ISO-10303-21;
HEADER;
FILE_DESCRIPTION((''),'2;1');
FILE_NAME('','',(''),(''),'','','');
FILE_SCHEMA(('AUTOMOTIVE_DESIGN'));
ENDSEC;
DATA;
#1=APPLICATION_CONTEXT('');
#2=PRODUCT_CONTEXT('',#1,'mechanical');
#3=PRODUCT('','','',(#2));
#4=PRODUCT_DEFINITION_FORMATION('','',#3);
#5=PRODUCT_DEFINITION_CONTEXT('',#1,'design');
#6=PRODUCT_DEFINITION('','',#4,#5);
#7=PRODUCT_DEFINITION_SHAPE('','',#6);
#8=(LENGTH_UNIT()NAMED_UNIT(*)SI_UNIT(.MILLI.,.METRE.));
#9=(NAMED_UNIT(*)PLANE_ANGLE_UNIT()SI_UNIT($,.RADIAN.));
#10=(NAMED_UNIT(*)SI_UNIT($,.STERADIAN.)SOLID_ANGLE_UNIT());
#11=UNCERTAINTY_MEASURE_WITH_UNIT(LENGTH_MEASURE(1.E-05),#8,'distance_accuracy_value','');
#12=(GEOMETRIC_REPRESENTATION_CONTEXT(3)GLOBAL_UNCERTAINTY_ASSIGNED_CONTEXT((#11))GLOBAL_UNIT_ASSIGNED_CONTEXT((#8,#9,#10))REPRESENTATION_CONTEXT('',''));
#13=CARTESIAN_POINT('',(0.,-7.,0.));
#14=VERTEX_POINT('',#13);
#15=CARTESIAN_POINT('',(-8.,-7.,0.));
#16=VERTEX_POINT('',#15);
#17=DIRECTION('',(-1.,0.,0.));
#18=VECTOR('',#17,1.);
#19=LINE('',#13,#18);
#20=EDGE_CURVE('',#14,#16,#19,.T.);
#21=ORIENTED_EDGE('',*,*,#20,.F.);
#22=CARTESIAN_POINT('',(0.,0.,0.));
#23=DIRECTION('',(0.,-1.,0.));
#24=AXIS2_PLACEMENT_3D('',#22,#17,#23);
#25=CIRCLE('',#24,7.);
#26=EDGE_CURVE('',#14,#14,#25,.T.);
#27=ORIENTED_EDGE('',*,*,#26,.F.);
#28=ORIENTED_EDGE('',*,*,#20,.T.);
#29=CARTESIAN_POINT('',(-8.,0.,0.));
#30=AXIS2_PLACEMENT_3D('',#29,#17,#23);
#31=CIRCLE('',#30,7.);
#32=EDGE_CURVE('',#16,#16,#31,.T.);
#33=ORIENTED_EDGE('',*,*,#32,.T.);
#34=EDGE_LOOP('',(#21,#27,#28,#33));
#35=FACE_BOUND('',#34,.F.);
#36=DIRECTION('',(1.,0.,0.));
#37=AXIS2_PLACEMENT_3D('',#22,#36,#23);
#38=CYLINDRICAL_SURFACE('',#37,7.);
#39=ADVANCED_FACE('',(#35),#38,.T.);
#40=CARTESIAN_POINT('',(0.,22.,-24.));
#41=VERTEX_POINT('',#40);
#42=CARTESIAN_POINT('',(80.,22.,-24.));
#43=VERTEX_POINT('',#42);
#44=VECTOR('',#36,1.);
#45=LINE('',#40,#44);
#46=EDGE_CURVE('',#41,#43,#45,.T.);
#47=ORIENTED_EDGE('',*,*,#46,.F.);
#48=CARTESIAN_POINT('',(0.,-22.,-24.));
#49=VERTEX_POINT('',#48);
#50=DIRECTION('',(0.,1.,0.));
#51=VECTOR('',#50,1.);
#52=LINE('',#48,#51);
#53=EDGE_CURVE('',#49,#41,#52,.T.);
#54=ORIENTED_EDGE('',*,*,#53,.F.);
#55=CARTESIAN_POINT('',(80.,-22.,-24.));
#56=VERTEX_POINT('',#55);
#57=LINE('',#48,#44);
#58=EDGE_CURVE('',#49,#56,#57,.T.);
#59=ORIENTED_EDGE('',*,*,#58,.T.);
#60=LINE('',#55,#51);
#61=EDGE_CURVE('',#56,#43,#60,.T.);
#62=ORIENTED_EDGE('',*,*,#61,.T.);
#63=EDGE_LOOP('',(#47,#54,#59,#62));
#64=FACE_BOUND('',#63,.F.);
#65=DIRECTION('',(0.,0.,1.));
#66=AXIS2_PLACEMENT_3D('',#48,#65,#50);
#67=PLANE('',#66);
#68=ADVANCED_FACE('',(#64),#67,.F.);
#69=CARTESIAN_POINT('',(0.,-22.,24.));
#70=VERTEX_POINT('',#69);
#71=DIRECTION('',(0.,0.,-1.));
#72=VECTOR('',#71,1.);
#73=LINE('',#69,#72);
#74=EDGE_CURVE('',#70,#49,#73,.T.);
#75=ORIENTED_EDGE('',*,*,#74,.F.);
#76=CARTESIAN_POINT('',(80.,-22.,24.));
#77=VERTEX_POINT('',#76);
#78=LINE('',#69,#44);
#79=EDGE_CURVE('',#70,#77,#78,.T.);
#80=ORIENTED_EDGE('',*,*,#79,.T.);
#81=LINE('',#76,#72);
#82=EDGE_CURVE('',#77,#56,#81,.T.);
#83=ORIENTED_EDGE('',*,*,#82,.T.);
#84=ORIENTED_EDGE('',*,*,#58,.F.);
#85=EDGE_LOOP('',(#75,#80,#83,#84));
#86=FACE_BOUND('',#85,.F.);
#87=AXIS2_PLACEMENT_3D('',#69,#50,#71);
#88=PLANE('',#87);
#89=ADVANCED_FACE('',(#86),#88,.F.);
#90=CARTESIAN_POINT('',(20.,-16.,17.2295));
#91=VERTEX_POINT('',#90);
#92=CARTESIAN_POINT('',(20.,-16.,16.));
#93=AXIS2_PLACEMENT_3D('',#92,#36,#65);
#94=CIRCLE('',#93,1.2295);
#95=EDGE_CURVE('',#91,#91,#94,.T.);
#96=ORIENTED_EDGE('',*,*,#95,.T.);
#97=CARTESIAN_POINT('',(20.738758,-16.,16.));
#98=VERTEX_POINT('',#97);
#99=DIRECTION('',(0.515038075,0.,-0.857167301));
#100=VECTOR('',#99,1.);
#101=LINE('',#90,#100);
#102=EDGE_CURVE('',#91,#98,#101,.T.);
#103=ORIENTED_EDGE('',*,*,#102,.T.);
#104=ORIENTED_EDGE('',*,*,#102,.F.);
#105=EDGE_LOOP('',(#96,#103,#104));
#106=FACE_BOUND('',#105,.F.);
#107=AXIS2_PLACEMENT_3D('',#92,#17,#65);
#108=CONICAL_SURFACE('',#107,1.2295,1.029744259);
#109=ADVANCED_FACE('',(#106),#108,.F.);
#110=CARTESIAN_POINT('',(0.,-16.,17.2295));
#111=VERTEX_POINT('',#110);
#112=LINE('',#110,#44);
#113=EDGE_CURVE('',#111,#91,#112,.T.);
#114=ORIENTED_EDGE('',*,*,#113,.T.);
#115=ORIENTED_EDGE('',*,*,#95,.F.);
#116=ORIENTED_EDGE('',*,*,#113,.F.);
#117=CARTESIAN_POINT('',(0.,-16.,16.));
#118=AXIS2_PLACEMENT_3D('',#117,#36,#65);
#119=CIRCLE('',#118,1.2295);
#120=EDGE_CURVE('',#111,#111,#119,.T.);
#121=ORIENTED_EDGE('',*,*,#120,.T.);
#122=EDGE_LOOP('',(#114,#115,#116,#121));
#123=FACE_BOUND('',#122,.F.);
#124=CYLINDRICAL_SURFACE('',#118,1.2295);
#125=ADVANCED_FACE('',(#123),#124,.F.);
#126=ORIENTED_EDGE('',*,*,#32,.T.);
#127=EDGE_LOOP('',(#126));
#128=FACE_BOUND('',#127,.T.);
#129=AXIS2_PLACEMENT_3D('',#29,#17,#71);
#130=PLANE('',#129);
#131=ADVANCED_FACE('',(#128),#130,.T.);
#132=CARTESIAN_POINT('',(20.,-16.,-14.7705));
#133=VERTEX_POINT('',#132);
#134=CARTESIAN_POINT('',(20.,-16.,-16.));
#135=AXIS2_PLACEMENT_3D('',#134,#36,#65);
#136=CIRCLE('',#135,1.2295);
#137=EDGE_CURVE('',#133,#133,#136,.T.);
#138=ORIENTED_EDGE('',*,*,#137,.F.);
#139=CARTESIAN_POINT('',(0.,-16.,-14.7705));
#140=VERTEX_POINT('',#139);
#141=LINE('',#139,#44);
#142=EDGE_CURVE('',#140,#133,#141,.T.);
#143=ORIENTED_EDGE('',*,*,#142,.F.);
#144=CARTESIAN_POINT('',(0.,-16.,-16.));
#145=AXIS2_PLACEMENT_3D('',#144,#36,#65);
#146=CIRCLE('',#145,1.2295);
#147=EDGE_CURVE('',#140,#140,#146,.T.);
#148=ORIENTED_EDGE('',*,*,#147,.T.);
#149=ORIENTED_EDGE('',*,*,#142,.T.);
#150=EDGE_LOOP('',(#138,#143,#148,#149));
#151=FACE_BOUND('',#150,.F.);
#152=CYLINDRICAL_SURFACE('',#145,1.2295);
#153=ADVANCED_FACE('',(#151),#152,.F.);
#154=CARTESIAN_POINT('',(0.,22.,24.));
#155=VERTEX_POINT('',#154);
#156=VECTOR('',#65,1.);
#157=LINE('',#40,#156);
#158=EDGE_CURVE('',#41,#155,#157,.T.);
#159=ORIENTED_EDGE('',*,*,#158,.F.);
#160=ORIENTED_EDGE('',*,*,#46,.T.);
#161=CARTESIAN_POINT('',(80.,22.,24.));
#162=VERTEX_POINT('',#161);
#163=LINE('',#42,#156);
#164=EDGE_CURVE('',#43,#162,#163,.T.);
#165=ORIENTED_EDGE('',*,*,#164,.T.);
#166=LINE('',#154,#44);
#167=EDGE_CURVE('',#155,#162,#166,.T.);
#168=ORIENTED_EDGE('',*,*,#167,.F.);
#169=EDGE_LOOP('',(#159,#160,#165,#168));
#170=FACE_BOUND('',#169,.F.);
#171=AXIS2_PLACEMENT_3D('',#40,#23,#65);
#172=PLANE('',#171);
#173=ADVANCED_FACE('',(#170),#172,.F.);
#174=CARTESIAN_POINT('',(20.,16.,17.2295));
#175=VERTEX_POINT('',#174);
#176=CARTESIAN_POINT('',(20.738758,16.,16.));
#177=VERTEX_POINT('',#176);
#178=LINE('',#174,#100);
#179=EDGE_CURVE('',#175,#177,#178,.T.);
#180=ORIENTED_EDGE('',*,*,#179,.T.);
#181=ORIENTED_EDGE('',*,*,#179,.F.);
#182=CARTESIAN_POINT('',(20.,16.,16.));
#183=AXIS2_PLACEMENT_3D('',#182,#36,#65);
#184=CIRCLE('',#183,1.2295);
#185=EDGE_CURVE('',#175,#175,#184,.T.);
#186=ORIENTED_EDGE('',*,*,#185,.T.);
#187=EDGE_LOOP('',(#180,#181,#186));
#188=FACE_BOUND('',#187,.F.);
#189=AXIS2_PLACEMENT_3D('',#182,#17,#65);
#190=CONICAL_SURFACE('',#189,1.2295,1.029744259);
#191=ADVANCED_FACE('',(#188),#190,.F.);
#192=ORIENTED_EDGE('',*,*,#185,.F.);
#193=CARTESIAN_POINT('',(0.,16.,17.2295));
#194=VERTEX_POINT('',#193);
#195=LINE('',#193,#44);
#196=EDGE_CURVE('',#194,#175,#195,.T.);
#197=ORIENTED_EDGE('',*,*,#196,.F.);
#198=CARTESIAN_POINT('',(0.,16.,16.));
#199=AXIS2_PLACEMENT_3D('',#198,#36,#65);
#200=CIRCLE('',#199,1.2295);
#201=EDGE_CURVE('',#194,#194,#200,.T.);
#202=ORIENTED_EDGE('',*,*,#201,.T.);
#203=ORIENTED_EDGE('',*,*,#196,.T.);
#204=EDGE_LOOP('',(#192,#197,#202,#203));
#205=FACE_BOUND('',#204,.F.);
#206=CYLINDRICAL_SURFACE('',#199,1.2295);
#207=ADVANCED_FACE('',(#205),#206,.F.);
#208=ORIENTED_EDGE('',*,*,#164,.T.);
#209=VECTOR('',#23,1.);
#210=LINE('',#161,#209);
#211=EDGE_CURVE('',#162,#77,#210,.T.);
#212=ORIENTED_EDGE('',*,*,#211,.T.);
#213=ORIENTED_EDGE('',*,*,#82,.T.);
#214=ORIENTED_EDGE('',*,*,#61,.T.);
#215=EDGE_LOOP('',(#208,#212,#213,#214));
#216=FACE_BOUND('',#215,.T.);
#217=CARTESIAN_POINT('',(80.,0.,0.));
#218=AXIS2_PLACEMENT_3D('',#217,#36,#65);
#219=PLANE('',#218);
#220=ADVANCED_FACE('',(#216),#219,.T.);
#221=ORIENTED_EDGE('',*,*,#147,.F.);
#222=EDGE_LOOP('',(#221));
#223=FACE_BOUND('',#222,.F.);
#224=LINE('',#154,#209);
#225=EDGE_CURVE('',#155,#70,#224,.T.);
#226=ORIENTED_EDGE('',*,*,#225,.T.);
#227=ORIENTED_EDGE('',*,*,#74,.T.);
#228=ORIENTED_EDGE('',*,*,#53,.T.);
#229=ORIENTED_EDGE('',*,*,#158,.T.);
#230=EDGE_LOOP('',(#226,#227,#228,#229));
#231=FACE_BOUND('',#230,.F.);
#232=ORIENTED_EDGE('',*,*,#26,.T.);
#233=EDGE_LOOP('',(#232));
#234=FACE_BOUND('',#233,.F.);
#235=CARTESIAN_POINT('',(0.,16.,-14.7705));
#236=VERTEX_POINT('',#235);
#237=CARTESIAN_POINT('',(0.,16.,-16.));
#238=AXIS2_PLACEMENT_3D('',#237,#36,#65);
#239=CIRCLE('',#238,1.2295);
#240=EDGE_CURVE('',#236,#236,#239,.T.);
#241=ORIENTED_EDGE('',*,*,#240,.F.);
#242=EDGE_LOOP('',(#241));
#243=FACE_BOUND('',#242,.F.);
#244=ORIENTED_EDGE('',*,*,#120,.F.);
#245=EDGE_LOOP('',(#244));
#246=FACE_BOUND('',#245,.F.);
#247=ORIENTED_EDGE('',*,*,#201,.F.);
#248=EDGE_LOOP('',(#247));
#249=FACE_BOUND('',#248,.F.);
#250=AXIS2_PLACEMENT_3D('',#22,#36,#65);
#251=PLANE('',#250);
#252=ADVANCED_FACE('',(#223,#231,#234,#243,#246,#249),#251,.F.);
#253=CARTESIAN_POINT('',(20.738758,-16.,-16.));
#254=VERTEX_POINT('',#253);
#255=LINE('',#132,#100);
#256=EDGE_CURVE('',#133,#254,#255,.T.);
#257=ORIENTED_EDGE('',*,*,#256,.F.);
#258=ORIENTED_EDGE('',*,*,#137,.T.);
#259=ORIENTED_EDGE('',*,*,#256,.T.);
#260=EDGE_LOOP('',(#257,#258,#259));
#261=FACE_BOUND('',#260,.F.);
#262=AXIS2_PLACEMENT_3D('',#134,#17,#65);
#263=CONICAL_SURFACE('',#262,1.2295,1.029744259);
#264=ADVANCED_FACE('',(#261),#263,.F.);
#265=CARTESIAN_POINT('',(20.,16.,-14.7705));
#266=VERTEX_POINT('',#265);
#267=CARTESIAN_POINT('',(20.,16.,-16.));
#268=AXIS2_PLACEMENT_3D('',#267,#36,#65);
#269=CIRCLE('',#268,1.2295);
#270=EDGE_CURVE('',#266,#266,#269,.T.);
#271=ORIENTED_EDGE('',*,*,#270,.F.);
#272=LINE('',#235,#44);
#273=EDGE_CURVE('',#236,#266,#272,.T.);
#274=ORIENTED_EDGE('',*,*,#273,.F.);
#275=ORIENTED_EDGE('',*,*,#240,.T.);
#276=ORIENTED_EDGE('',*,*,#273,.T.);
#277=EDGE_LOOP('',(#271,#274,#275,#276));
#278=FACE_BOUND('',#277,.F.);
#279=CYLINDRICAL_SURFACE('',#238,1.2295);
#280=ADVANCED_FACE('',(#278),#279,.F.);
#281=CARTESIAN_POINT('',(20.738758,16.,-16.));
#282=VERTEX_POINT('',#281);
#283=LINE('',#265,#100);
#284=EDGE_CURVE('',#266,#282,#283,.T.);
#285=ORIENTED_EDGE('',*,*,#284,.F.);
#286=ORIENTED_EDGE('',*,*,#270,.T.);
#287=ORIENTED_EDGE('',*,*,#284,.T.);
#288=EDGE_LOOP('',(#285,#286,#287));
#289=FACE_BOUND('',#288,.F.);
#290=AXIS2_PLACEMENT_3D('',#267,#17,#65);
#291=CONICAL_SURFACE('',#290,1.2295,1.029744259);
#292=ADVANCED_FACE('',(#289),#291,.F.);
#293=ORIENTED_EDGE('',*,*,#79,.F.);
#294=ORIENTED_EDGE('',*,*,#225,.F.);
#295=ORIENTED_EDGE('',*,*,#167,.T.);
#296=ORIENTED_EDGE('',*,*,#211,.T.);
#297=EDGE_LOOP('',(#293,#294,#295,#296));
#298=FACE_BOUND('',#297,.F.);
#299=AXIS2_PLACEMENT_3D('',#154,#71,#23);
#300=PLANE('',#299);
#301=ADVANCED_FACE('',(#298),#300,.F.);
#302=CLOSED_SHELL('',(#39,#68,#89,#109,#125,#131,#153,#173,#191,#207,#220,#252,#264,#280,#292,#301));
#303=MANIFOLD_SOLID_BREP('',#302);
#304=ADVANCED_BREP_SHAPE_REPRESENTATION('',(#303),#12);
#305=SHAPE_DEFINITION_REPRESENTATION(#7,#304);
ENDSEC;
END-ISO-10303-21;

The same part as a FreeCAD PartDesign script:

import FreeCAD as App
import Part
import Sketcher


def add_polygon(sketch, points):
    """Adds a closed chain of lines whose ends are joined by coincident constraints."""
    first, n = sketch.GeometryCount, len(points)
    for a, b in zip(points, points[1:] + points[:1]):
        sketch.addGeometry(Part.LineSegment(App.Vector(*a, 0), App.Vector(*b, 0)), False)
    for i in range(n):
        sketch.addConstraint(Sketcher.Constraint("Coincident", first + i, 2, first + (i + 1) % n, 1))

doc = App.newDocument("Part")
body = doc.addObject("PartDesign::Body", "Body")

# Sketch on YZ plane
sketch1 = body.newObject("Sketcher::SketchObject", "Sketch")
sketch1.AttachmentSupport = (doc.getObject("YZ_Plane"), [""])
sketch1.MapMode = "FlatFace"
add_polygon(sketch1, [(22, -24), (22, 24), (-22, 24), (-22, -24)])  # lines 0-3
sketch1.addConstraint(Sketcher.Constraint("Vertical", 0))
sketch1.addConstraint(Sketcher.Constraint("Horizontal", 1))
sketch1.addConstraint(Sketcher.Constraint("Vertical", 2))
sketch1.addConstraint(Sketcher.Constraint("Horizontal", 3))
sketch1.addConstraint(Sketcher.Constraint("Symmetric", 0, 2, 2, 2, -1, 1))
sketch1.addConstraint(Sketcher.Constraint("DistanceX", 1, 2, 1, 1, 44.0))
sketch1.addConstraint(Sketcher.Constraint("DistanceY", 0, 1, 0, 2, 48.0))
pad1 = body.newObject("PartDesign::Pad", "Pad")
pad1.Profile = sketch1
pad1.Length = 80

# Sketch on YZ plane
sketch2 = body.newObject("Sketcher::SketchObject", "Sketch001")
sketch2.AttachmentSupport = (doc.getObject("YZ_Plane"), [""])
sketch2.MapMode = "FlatFace"
sketch2.addGeometry(Part.Circle(App.Vector(0, 0, 0), App.Vector(0, 0, 1), 7), False)
sketch2.addConstraint(Sketcher.Constraint("Coincident", 0, 3, -1, 1))
sketch2.addConstraint(Sketcher.Constraint("Diameter", 0, 14.0))
pad2 = body.newObject("PartDesign::Pad", "Pad001")
pad2.Profile = sketch2
pad2.Length = 8
pad2.Reversed = True

# Sketch on YZ plane
sketch3 = body.newObject("Sketcher::SketchObject", "Sketch002")
sketch3.AttachmentSupport = (doc.getObject("YZ_Plane"), [""])
sketch3.MapMode = "FlatFace"
sketch3.addGeometry(Part.Circle(App.Vector(16, 16, 0), App.Vector(0, 0, 1), 1.2), False)
sketch3.addConstraint(Sketcher.Constraint("Diameter", 0, 2.459))
sketch3.addConstraint(Sketcher.Constraint("DistanceX", -1, 1, 0, 3, 16.0))
sketch3.addConstraint(Sketcher.Constraint("DistanceY", -1, 1, 0, 3, 16.0))
doc.recompute()
hole = body.newObject("PartDesign::Hole", "Hole")
hole.Profile = sketch3
hole.ThreadType = "None"
hole.Diameter = 2.459
hole.DepthType = "Dimension"
hole.Depth = 20
hole.DrillPoint = "Angled"
hole.DrillPointAngle = 118
hole.Reversed = True

# Sketch on YZ plane
sketch4 = body.newObject("Sketcher::SketchObject", "Sketch003")
sketch4.AttachmentSupport = (doc.getObject("YZ_Plane"), [""])
sketch4.MapMode = "FlatFace"
sketch4.addGeometry(Part.Circle(App.Vector(-16, 16, 0), App.Vector(0, 0, 1), 1.2), False)
sketch4.addConstraint(Sketcher.Constraint("Diameter", 0, 2.459))
sketch4.addConstraint(Sketcher.Constraint("DistanceX", 0, 3, -1, 1, 16.0))
sketch4.addConstraint(Sketcher.Constraint("DistanceY", -1, 1, 0, 3, 16.0))
doc.recompute()
hole2 = body.newObject("PartDesign::Hole", "Hole001")
hole2.Profile = sketch4
hole2.ThreadType = "None"
hole2.Diameter = 2.459
hole2.DepthType = "Dimension"
hole2.Depth = 20
hole2.DrillPoint = "Angled"
hole2.DrillPointAngle = 118
hole2.Reversed = True

# Sketch on YZ plane
sketch5 = body.newObject("Sketcher::SketchObject", "Sketch004")
sketch5.AttachmentSupport = (doc.getObject("YZ_Plane"), [""])
sketch5.MapMode = "FlatFace"
sketch5.addGeometry(Part.Circle(App.Vector(-16, -16, 0), App.Vector(0, 0, 1), 1.2), False)
sketch5.addConstraint(Sketcher.Constraint("Diameter", 0, 2.459))
sketch5.addConstraint(Sketcher.Constraint("DistanceX", 0, 3, -1, 1, 16.0))
sketch5.addConstraint(Sketcher.Constraint("DistanceY", 0, 3, -1, 1, 16.0))
doc.recompute()
hole3 = body.newObject("PartDesign::Hole", "Hole002")
hole3.Profile = sketch5
hole3.ThreadType = "None"
hole3.Diameter = 2.459
hole3.DepthType = "Dimension"
hole3.Depth = 20
hole3.DrillPoint = "Angled"
hole3.DrillPointAngle = 118
hole3.Reversed = True

# Sketch on YZ plane
sketch6 = body.newObject("Sketcher::SketchObject", "Sketch005")
sketch6.AttachmentSupport = (doc.getObject("YZ_Plane"), [""])
sketch6.MapMode = "FlatFace"
sketch6.addGeometry(Part.Circle(App.Vector(16, -16, 0), App.Vector(0, 0, 1), 1.2), False)
sketch6.addConstraint(Sketcher.Constraint("Diameter", 0, 2.459))
sketch6.addConstraint(Sketcher.Constraint("DistanceX", -1, 1, 0, 3, 16.0))
sketch6.addConstraint(Sketcher.Constraint("DistanceY", 0, 3, -1, 1, 16.0))
doc.recompute()
hole4 = body.newObject("PartDesign::Hole", "Hole003")
hole4.Profile = sketch6
hole4.ThreadType = "None"
hole4.Diameter = 2.459
hole4.DepthType = "Dimension"
hole4.Depth = 20
hole4.DrillPoint = "Angled"
hole4.DrillPointAngle = 118
hole4.Reversed = True

doc.recompute()
